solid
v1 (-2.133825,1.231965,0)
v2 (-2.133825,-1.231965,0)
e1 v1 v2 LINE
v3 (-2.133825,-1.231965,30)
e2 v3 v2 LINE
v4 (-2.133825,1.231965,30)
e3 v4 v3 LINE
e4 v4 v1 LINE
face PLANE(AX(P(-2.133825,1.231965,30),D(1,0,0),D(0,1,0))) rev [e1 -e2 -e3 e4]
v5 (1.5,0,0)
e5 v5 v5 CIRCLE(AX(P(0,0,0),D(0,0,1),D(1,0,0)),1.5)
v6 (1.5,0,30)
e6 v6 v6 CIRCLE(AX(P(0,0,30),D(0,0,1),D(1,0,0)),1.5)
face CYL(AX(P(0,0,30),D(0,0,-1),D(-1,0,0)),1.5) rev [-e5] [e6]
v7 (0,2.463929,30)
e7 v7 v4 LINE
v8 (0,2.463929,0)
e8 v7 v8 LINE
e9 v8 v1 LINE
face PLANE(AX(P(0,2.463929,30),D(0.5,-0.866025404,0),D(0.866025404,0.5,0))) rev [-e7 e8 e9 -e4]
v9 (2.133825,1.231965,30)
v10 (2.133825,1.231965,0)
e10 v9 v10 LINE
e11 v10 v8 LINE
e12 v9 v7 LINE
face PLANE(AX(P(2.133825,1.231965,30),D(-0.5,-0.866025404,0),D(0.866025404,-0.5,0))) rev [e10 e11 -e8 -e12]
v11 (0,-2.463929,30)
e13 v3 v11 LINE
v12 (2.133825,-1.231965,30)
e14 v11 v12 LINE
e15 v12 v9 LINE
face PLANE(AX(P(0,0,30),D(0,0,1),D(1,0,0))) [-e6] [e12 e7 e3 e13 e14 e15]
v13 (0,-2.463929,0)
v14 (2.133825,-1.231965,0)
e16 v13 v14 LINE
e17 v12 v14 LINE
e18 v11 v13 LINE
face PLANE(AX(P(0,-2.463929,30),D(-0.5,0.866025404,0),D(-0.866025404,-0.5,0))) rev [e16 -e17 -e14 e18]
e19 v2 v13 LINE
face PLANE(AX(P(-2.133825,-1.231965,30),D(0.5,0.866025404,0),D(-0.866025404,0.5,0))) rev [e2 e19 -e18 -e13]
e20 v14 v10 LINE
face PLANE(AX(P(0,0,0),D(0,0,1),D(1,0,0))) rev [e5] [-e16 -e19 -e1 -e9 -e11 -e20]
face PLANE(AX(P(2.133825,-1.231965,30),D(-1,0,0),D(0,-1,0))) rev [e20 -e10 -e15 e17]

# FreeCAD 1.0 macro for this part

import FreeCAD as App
import Part
import Sketcher
Q = App.Units.Quantity

doc = App.newDocument("Part")
params = doc.addObject("Spreadsheet::Sheet", "Params")
for row, (alias, value) in enumerate([
    ("sketch1_diameter", "3 mm"),
    ("pad1_length", "30 mm"),
], start=1):
    params.set(f"A{row}", alias)
    params.set(f"B{row}", "=" + value)
    params.setAlias(f"B{row}", alias)

body = doc.addObject("PartDesign::Body", "Body")

sketch1 = body.newObject("Sketcher::SketchObject", "Sketch")
sketch1.AttachmentSupport = (doc.getObject("XY_Plane"), [""])
sketch1.MapMode = "FlatFace"
sketch1.addGeometry(Part.LineSegment(App.Vector(0, 2.5, 0), App.Vector(-2.1, 1.2, 0)), False)
sketch1.addGeometry(Part.LineSegment(App.Vector(-2.1, 1.2, 0), App.Vector(-2.1, -1.2, 0)), False)
sketch1.addGeometry(Part.LineSegment(App.Vector(-2.1, -1.2, 0), App.Vector(0, -2.5, 0)), False)
sketch1.addGeometry(Part.LineSegment(App.Vector(0, -2.5, 0), App.Vector(2.1, -1.2, 0)), False)
sketch1.addGeometry(Part.LineSegment(App.Vector(2.1, -1.2, 0), App.Vector(2.1, 1.2, 0)), False)
sketch1.addGeometry(Part.LineSegment(App.Vector(2.1, 1.2, 0), App.Vector(0, 2.5, 0)), False)
sketch1.addGeometry(Part.Circle(App.Vector(0, 0, 0), App.Vector(0, 0, 1), 1.5), False)
sketch1.addConstraint(Sketcher.Constraint("Coincident", 0, 2, 1, 1))
sketch1.addConstraint(Sketcher.Constraint("Coincident", 1, 2, 2, 1))
sketch1.addConstraint(Sketcher.Constraint("Coincident", 2, 2, 3, 1))
sketch1.addConstraint(Sketcher.Constraint("Coincident", 3, 2, 4, 1))
sketch1.addConstraint(Sketcher.Constraint("Coincident", 4, 2, 5, 1))
sketch1.addConstraint(Sketcher.Constraint("Coincident", 5, 2, 0, 1))
sketch1.addConstraint(Sketcher.Constraint("Vertical", 1))
sketch1.addConstraint(Sketcher.Constraint("Vertical", 4))
sketch1.addConstraint(Sketcher.Constraint("Coincident", 6, 3, -1, 1))
sketch1.addConstraint(Sketcher.Constraint("Symmetric", 0, 2, 3, 2, -1, 1))
sketch1.addConstraint(Sketcher.Constraint("Symmetric", 2, 2, 5, 2, -1, 1))
sketch1.addConstraint(Sketcher.Constraint("PointOnObject", 2, 2, -2))
sketch1.addConstraint(Sketcher.Constraint("Parallel", 2, 5))
sketch1.addConstraint(Sketcher.Constraint("Horizontal", 1, 2, 3, 2))
sketch1.addConstraint(Sketcher.Constraint("Diameter", 6, 3.0))
sketch1.addConstraint(Sketcher.Constraint("Angle", 0, Q("-150 deg")))
sketch1.addConstraint(Sketcher.Constraint("DistanceY", 1, 2, 1, 1, 2.463929))
sketch1.addConstraint(Sketcher.Constraint("Distance", 0, 2.463929))
sketch1.setExpression("Constraints[14]", "Params.sketch1_diameter")
pad1 = body.newObject("PartDesign::Pad", "Pad")
pad1.Profile = sketch1
pad1.setExpression("Length", "Params.pad1_length")

doc.recompute()
